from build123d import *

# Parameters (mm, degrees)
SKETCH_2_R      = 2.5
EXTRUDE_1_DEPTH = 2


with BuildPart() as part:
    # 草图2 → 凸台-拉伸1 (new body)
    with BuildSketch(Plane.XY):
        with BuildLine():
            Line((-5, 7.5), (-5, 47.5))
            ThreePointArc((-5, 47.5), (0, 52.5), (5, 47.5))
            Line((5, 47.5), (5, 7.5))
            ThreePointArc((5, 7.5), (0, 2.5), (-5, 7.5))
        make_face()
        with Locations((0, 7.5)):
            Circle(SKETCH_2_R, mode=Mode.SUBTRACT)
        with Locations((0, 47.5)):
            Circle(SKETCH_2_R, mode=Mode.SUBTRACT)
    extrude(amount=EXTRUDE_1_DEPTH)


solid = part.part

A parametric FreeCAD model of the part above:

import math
import FreeCAD as App
import Part
import Sketcher

V = App.Vector
Q = App.Units.Quantity

doc = App.newDocument("Part")
body = doc.addObject("PartDesign::Body", "Body")

# Sketch on XY plane
sketch1 = body.newObject("Sketcher::SketchObject", "Sketch")
sketch1.AttachmentSupport = (doc.getObject("XY_Plane"), [""])
sketch1.MapMode = "FlatFace"
sketch1.addGeometry([
    Part.LineSegment(V(-5, 47.5, 0), V(-5, 7.5, 0)),  # 0
    Part.ArcOfCircle(Part.Circle(V(0, 7.5, 0), V(0, 0, 1), 5), math.radians(180), math.radians(360)),  # 1
    Part.LineSegment(V(5, 7.5, 0), V(5, 47.5, 0)),  # 2
    Part.ArcOfCircle(Part.Circle(V(0, 47.5, 0), V(0, 0, 1), 5), math.radians(0), math.radians(180)),  # 3
    Part.Circle(V(0, 7.5, 0), V(0, 0, 1), 2.5),  # 4
    Part.Circle(V(0, 47.5, 0), V(0, 0, 1), 2.5),  # 5
], False)
sketch1.addConstraint([
    Sketcher.Constraint("Tangent", 0, 2, 1, 1),
    Sketcher.Constraint("Tangent", 1, 2, 2, 1),
    Sketcher.Constraint("Tangent", 2, 2, 3, 1),
    Sketcher.Constraint("Tangent", 3, 2, 0, 1),
    Sketcher.Constraint("Vertical", 0),
    Sketcher.Constraint("Vertical", 2),
    Sketcher.Constraint("Coincident", 4, 3, 1, 3),
    Sketcher.Constraint("Coincident", 5, 3, 3, 3),
    Sketcher.Constraint("Equal", 4, 5),
    Sketcher.Constraint("PointOnObject", 1, 3, -2),
    Sketcher.Constraint("Diameter", 4, Q("5 mm")),
    Sketcher.Constraint("Radius", 1, Q("5 mm")),
    Sketcher.Constraint("DistanceY", 0, 2, 0, 1, Q("40 mm")),
    Sketcher.Constraint("DistanceY", -1, 1, 1, 3, Q("7.5 mm")),
])
pad1 = body.newObject("PartDesign::Pad", "Pad")
pad1.Profile = sketch1
pad1.Length = 2

doc.recompute()
